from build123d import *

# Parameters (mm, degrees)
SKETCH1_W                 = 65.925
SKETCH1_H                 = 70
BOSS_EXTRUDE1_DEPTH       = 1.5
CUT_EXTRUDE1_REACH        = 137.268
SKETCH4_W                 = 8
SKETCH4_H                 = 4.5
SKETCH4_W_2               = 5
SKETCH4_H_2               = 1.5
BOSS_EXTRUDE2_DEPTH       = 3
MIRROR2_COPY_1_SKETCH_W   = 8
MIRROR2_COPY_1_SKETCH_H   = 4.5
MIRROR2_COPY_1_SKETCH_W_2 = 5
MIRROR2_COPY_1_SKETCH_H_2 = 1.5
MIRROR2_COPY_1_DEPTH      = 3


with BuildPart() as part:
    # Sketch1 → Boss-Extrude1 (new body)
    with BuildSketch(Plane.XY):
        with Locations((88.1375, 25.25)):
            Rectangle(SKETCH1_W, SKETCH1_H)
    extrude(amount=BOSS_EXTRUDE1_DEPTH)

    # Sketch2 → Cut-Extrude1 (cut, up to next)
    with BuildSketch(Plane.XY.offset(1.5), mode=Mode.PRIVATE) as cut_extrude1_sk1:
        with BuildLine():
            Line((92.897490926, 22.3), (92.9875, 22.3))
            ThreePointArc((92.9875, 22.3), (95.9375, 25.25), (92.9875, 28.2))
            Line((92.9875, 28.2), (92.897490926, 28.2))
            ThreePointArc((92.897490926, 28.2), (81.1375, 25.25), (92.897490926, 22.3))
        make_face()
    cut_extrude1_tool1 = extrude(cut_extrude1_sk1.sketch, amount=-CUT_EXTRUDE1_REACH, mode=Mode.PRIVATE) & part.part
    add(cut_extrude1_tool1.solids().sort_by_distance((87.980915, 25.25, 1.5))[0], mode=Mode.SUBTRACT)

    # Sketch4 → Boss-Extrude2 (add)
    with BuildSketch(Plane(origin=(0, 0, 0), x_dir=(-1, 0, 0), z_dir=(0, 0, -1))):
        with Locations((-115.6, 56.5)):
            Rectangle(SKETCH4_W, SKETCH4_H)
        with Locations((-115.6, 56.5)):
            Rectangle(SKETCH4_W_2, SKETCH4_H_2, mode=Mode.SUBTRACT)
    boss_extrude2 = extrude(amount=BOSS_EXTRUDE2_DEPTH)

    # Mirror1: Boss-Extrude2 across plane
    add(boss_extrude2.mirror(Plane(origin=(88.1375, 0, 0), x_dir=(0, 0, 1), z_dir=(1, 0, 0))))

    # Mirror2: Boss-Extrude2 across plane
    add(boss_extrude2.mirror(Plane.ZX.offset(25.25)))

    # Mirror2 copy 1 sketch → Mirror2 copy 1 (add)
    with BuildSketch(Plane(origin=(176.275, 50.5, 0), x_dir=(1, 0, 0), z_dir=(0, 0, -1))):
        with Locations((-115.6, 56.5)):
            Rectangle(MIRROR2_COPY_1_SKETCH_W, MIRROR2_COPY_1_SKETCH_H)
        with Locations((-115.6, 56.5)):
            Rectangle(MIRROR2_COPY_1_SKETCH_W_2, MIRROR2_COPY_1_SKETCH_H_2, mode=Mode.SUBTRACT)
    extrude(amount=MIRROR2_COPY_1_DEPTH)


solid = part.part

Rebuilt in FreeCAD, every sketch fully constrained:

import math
import FreeCAD as App
import Part
import Sketcher

V = App.Vector


def add_polygon(sketch, points):
    """Adds a closed chain of lines whose ends are joined by coincident constraints."""
    first, n = sketch.GeometryCount, len(points)
    for a, b in zip(points, points[1:] + points[:1]):
        sketch.addGeometry(Part.LineSegment(App.Vector(*a, 0), App.Vector(*b, 0)), False)
    for i in range(n):
        sketch.addConstraint(Sketcher.Constraint("Coincident", first + i, 2, first + (i + 1) % n, 1))

doc = App.newDocument("Part")
body = doc.addObject("PartDesign::Body", "Body")

sketch1 = body.newObject("Sketcher::SketchObject", "Sketch")
sketch1.AttachmentSupport = (doc.getObject("XY_Plane"), [""])
sketch1.MapMode = "FlatFace"
add_polygon(sketch1, [(55, 60), (55, -10), (121, -10), (121, 60)])
sketch1.addConstraint(Sketcher.Constraint("Vertical", 0))
sketch1.addConstraint(Sketcher.Constraint("Horizontal", 1))
sketch1.addConstraint(Sketcher.Constraint("Vertical", 2))
sketch1.addConstraint(Sketcher.Constraint("Horizontal", 3))
sketch1.addConstraint(Sketcher.Constraint("DistanceY", 0, 2, 0, 1, 70.0))
sketch1.addConstraint(Sketcher.Constraint("DistanceX", -1, 1, 1, 2, 121.1))
sketch1.addConstraint(Sketcher.Constraint("DistanceX", 1, 1, 1, 2, 65.925))
sketch1.addConstraint(Sketcher.Constraint("DistanceY", 0, 2, -1, 1, 9.75))
pad1 = body.newObject("PartDesign::Pad", "Pad")
pad1.Profile = sketch1
pad1.Length = 1.5

sketch2 = body.newObject("Sketcher::SketchObject", "Sketch001")
sketch2.AttachmentSupport = (doc.getObject("XY_Plane"), [""])
sketch2.MapMode = "FlatFace"
sketch2.AttachmentOffset = App.Placement(V(0, 0, 1.5), App.Rotation())
sketch2.addGeometry(Part.LineSegment(V(92.9, 22.3, 0), V(92.99, 22.3, 0)), False)
sketch2.addGeometry(Part.ArcOfCircle(Part.Circle(V(92.99, 25.25, 0), V(0, 0, 1), 2.95), math.radians(-90), math.radians(90)), False)
sketch2.addGeometry(Part.LineSegment(V(92.99, 28.2, 0), V(92.9, 28.2, 0)), False)
sketch2.addGeometry(Part.ArcOfCircle(Part.Circle(V(87.39, 25.25, 0), V(0, 0, 1), 6.25), math.radians(28), math.radians(332)), False)
sketch2.addConstraint(Sketcher.Constraint("Tangent", 0, 2, 1, 1))
sketch2.addConstraint(Sketcher.Constraint("Tangent", 1, 2, 2, 1))
sketch2.addConstraint(Sketcher.Constraint("Coincident", 2, 2, 3, 1))
sketch2.addConstraint(Sketcher.Constraint("Coincident", 3, 2, 0, 1))
sketch2.addConstraint(Sketcher.Constraint("Horizontal", 0))
sketch2.addConstraint(Sketcher.Constraint("Horizontal", 2))
sketch2.addConstraint(Sketcher.Constraint("Horizontal", 1, 3, 3, 3))
sketch2.addConstraint(Sketcher.Constraint("Radius", 1, 2.95))
sketch2.addConstraint(Sketcher.Constraint("Radius", 3, 6.25))
sketch2.addConstraint(Sketcher.Constraint("DistanceY", -1, 1, 0, 2, 22.3))
sketch2.addConstraint(Sketcher.Constraint("DistanceX", 3, 3, 1, 3, 5.6))
sketch2.addConstraint(Sketcher.Constraint("DistanceX", -1, 1, 1, 3, 92.9875))
pocket1 = body.newObject("PartDesign::Pocket", "Pocket")
pocket1.Profile = sketch2
pocket1.Type = "UpToFirst"

sketch3 = body.newObject("Sketcher::SketchObject", "Sketch002")
sketch3.AttachmentSupport = (doc.getObject("XY_Plane"), [""])
sketch3.MapMode = "FlatFace"
add_polygon(sketch3, [(119.6, 58.8), (119.6, 54.2), (111.6, 54.2), (111.6, 58.8)])
add_polygon(sketch3, [(113.1, 55.8), (118.1, 55.8), (118.1, 57.2), (113.1, 57.2)])
sketch3.addConstraint(Sketcher.Constraint("Vertical", 0))
sketch3.addConstraint(Sketcher.Constraint("Horizontal", 1))
sketch3.addConstraint(Sketcher.Constraint("Vertical", 2))
sketch3.addConstraint(Sketcher.Constraint("Horizontal", 3))
sketch3.addConstraint(Sketcher.Constraint("Horizontal", 4))
sketch3.addConstraint(Sketcher.Constraint("Vertical", 5))
sketch3.addConstraint(Sketcher.Constraint("Horizontal", 6))
sketch3.addConstraint(Sketcher.Constraint("Vertical", 7))
sketch3.addConstraint(Sketcher.Constraint("DistanceX", 1, 2, 1, 1, 8.0))
sketch3.addConstraint(Sketcher.Constraint("DistanceX", 4, 1, 4, 2, 5.0))
sketch3.addConstraint(Sketcher.Constraint("DistanceY", 0, 2, 0, 1, 4.5))
sketch3.addConstraint(Sketcher.Constraint("DistanceY", 5, 1, 5, 2, 1.5))
sketch3.addConstraint(Sketcher.Constraint("DistanceY", 4, 2, 3, 2, 3.0))
sketch3.addConstraint(Sketcher.Constraint("DistanceX", -1, 1, 0, 2, 119.6))
sketch3.addConstraint(Sketcher.Constraint("DistanceX", -1, 1, 4, 2, 118.1))
sketch3.addConstraint(Sketcher.Constraint("DistanceY", -1, 1, 0, 2, 54.25))
pad2 = body.newObject("PartDesign::Pad", "Pad001")
pad2.Profile = sketch3
pad2.Length = 3
pad2.Reversed = True
doc.recompute()

datumplane = body.newObject("PartDesign::Plane", "DatumPlane")
datumplane.AttachmentSupport = (doc.getObject("YZ_Plane"), [""])
datumplane.MapMode = "FlatFace"
datumplane.AttachmentOffset = App.Placement(V(0, 0, 88.1375), App.Rotation())
mirrored = body.newObject("PartDesign::Mirrored", "Mirrored")
mirrored.Originals = [pad2]
mirrored.MirrorPlane = (datumplane, [""])
body.Tip = mirrored
doc.recompute()

datumplane2 = body.newObject("PartDesign::Plane", "DatumPlane001")
datumplane2.AttachmentSupport = (doc.getObject("XZ_Plane"), [""])
datumplane2.MapMode = "FlatFace"
datumplane2.AttachmentOffset = App.Placement(V(0, 0, -25.25), App.Rotation())
mirrored2 = body.newObject("PartDesign::Mirrored", "Mirrored001")
mirrored2.Originals = [pad2]
mirrored2.MirrorPlane = (datumplane2, [""])
body.Tip = mirrored2

sketch4 = body.newObject("Sketcher::SketchObject", "Sketch003")
sketch4.AttachmentSupport = (doc.getObject("XY_Plane"), [""])
sketch4.MapMode = "FlatFace"
add_polygon(sketch4, [(56.7, -8.2), (56.7, -3.8), (64.7, -3.8), (64.7, -8.2)])
add_polygon(sketch4, [(63.2, -5.2), (58.2, -5.2), (58.2, -6.8), (63.2, -6.8)])
sketch4.addConstraint(Sketcher.Constraint("Vertical", 0))
sketch4.addConstraint(Sketcher.Constraint("Horizontal", 1))
sketch4.addConstraint(Sketcher.Constraint("Vertical", 2))
sketch4.addConstraint(Sketcher.Constraint("Horizontal", 3))
sketch4.addConstraint(Sketcher.Constraint("Horizontal", 4))
sketch4.addConstraint(Sketcher.Constraint("Vertical", 5))
sketch4.addConstraint(Sketcher.Constraint("Horizontal", 6))
sketch4.addConstraint(Sketcher.Constraint("Vertical", 7))
sketch4.addConstraint(Sketcher.Constraint("DistanceX", 1, 1, 1, 2, 8.0))
sketch4.addConstraint(Sketcher.Constraint("DistanceX", 4, 2, 4, 1, 5.0))
sketch4.addConstraint(Sketcher.Constraint("DistanceY", 0, 1, 0, 2, 4.5))
sketch4.addConstraint(Sketcher.Constraint("DistanceY", 5, 2, 5, 1, 1.5))
sketch4.addConstraint(Sketcher.Constraint("DistanceY", 3, 2, 4, 2, 3.0))
sketch4.addConstraint(Sketcher.Constraint("DistanceX", 0, 2, 4, 2, 1.5))
sketch4.addConstraint(Sketcher.Constraint("DistanceY", 0, 2, -1, 1, 3.75))
sketch4.addConstraint(Sketcher.Constraint("DistanceX", -1, 1, 0, 2, 56.675))
pad3 = body.newObject("PartDesign::Pad", "Pad002")
pad3.Profile = sketch4
pad3.Length = 3
pad3.Reversed = True

doc.recompute()
